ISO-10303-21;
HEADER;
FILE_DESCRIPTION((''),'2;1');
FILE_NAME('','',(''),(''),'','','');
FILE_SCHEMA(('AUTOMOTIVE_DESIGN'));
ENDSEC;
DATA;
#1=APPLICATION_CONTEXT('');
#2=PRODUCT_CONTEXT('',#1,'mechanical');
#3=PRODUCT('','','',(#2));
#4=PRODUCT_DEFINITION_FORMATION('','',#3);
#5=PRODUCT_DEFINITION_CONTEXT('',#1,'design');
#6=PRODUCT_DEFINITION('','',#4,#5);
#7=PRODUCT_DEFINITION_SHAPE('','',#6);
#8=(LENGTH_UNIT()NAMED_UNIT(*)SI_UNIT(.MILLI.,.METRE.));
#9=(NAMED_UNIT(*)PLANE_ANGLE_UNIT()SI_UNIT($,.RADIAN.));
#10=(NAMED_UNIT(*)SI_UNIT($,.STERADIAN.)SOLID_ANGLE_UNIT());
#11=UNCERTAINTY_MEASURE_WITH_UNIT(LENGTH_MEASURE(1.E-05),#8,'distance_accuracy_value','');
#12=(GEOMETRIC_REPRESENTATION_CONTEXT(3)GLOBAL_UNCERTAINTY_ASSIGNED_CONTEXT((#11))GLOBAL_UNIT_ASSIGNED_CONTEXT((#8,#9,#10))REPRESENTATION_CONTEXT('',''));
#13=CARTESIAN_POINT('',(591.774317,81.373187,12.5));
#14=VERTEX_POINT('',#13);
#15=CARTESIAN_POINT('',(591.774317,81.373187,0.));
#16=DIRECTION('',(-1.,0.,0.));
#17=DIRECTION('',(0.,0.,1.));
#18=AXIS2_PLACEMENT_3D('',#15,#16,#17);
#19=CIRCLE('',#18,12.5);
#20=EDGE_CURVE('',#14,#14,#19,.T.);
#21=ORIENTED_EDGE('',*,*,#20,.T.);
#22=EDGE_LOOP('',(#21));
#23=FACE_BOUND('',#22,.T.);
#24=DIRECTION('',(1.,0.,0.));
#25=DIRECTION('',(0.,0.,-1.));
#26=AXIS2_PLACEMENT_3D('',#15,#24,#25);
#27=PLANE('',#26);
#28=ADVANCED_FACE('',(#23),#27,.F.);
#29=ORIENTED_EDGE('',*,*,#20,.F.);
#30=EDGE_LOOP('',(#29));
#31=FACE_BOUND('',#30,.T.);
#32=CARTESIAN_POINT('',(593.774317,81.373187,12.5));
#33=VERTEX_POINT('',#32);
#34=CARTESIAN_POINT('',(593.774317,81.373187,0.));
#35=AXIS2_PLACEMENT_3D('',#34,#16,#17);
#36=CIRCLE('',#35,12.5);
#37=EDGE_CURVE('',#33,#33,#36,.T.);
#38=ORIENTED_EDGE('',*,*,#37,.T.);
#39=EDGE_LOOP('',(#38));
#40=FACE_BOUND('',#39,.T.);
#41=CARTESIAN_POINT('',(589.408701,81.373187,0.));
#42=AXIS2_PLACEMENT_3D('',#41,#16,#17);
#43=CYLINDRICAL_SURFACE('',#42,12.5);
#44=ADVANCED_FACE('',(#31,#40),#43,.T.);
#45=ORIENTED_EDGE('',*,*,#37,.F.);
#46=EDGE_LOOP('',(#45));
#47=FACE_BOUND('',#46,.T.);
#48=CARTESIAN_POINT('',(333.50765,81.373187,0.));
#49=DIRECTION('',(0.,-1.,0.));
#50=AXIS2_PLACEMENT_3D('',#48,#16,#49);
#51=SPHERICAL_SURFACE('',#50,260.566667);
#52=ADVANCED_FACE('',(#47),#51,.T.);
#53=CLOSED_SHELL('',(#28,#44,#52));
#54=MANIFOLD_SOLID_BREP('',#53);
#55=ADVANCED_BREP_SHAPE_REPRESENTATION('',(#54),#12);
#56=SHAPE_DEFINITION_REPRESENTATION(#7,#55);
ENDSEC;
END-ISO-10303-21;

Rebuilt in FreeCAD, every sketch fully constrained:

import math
import FreeCAD as App
import Part
import Sketcher

V = App.Vector

doc = App.newDocument("Part")
body = doc.addObject("PartDesign::Body", "Body")

# Sketch on XY plane
sketch1 = body.newObject("Sketcher::SketchObject", "Sketch")
sketch1.AttachmentSupport = (doc.getObject("XY_Plane"), [""])
sketch1.MapMode = "FlatFace"
sketch1.addGeometry(Part.LineSegment(V(591.8, 93.9, 0), V(591.8, 81.4, 0)), False)
sketch1.addGeometry(Part.LineSegment(V(591.8, 81.4, 0), V(594.1, 81.4, 0)), False)
sketch1.addGeometry(Part.ArcOfCircle(Part.Circle(V(333.5, 81.4, 0), V(0, 0, 1), 260.6), math.radians(0), math.radians(2.75)), False)
sketch1.addGeometry(Part.LineSegment(V(593.8, 93.9, 0), V(591.8, 93.9, 0)), False)
sketch1.addGeometry(Part.LineSegment(V(333.5, 81.4, 0), V(594.1, 81.4, 0)), True)  # axis
sketch1.addConstraint(Sketcher.Constraint("Coincident", 0, 2, 1, 1))
sketch1.addConstraint(Sketcher.Constraint("Coincident", 1, 2, 2, 1))
sketch1.addConstraint(Sketcher.Constraint("Coincident", 2, 2, 3, 1))
sketch1.addConstraint(Sketcher.Constraint("Coincident", 3, 2, 0, 1))
sketch1.addConstraint(Sketcher.Constraint("Vertical", 0))
sketch1.addConstraint(Sketcher.Constraint("Horizontal", 1))
sketch1.addConstraint(Sketcher.Constraint("Horizontal", 3))
sketch1.addConstraint(Sketcher.Constraint("Horizontal", 4))
sketch1.addConstraint(Sketcher.Constraint("Coincident", 4, 1, 2, 3))
sketch1.addConstraint(Sketcher.Constraint("Coincident", 4, 2, 1, 2))
sketch1.addConstraint(Sketcher.Constraint("DistanceX", 3, 2, 3, 1, 2.0))
sketch1.addConstraint(Sketcher.Constraint("DistanceX", 1, 1, 1, 2, 2.3))
sketch1.addConstraint(Sketcher.Constraint("DistanceY", 0, 2, 0, 1, 12.5))
sketch1.addConstraint(Sketcher.Constraint("DistanceX", -1, 1, 2, 3, 333.50765))
sketch1.addConstraint(Sketcher.Constraint("DistanceY", -1, 1, 2, 3, 81.373187))
revolution = body.newObject("PartDesign::Revolution", "Revolution")
revolution.Profile = sketch1
revolution.ReferenceAxis = (sketch1, ["Axis0"])
revolution.Angle = 360

doc.recompute()
